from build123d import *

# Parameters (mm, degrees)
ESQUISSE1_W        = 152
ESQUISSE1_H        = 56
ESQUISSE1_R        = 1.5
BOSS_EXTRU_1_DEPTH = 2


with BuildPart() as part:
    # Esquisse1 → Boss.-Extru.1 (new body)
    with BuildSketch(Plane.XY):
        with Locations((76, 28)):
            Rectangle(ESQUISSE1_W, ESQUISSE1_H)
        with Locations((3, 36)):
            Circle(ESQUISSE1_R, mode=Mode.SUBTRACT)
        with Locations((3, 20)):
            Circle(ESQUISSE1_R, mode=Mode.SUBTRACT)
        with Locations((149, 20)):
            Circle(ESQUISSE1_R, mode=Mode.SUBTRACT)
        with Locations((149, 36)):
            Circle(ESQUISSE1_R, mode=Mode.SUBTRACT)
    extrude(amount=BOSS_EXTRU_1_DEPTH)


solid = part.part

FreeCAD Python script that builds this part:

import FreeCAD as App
import Part
import Sketcher
Q = App.Units.Quantity

doc = App.newDocument("Part")
body = doc.addObject("PartDesign::Body", "Body")

sketch1 = doc.addObject("Sketcher::SketchObject", "Sketch")
body.addObject(sketch1)
sketch1.AttachmentSupport = (doc.XY_Plane, [""])
sketch1.MapMode = "FlatFace"
sketch1.addGeometry([
    Part.LineSegment(App.Vector(0, 56, 0), App.Vector(0, 0, 0)),
    Part.LineSegment(App.Vector(0, 0, 0), App.Vector(152, 0, 0)),
    Part.LineSegment(App.Vector(152, 0, 0), App.Vector(152, 56, 0)),
    Part.LineSegment(App.Vector(152, 56, 0), App.Vector(0, 56, 0)),
    Part.Circle(App.Vector(3, 20, 0), App.Vector(0, 0, 1), 1.5),
    Part.Circle(App.Vector(149, 20, 0), App.Vector(0, 0, 1), 1.5),
    Part.Circle(App.Vector(3, 36, 0), App.Vector(0, 0, 1), 1.5),
    Part.Circle(App.Vector(149, 36, 0), App.Vector(0, 0, 1), 1.5),
], False)
sketch1.addConstraint([
    Sketcher.Constraint("Coincident", 0, 2, 1, 1),
    Sketcher.Constraint("Coincident", 1, 2, 2, 1),
    Sketcher.Constraint("Coincident", 2, 2, 3, 1),
    Sketcher.Constraint("Coincident", 3, 2, 0, 1),
    Sketcher.Constraint("Vertical", 0),
    Sketcher.Constraint("Horizontal", 1),
    Sketcher.Constraint("Vertical", 2),
    Sketcher.Constraint("Horizontal", 3),
    Sketcher.Constraint("Coincident", 0, 2, -1, 1),
    Sketcher.Constraint("Equal", 4, 5),
    Sketcher.Constraint("Equal", 5, 6),
    Sketcher.Constraint("Equal", 6, 7),
    Sketcher.Constraint("Horizontal", 4, 3, 5, 3),
    Sketcher.Constraint("Horizontal", 6, 3, 7, 3),
    Sketcher.Constraint("Vertical", 4, 3, 6, 3),
    Sketcher.Constraint("Vertical", 5, 3, 7, 3),
    Sketcher.Constraint("Diameter", 4, Q("3 mm")),
    Sketcher.Constraint("DistanceX", 1, 1, 1, 2, Q("152 mm")),
    Sketcher.Constraint("DistanceY", 0, 2, 0, 1, Q("56 mm")),
    Sketcher.Constraint("DistanceX", -1, 1, 4, 3, Q("3 mm")),
    Sketcher.Constraint("DistanceY", -1, 1, 4, 3, Q("20 mm")),
    Sketcher.Constraint("DistanceX", -1, 1, 5, 3, Q("149 mm")),
    Sketcher.Constraint("DistanceY", -1, 1, 6, 3, Q("36 mm")),
])
pad1 = doc.addObject("PartDesign::Pad", "Pad")
body.addObject(pad1)
pad1.Profile = sketch1
pad1.Length = 2

doc.recompute()
